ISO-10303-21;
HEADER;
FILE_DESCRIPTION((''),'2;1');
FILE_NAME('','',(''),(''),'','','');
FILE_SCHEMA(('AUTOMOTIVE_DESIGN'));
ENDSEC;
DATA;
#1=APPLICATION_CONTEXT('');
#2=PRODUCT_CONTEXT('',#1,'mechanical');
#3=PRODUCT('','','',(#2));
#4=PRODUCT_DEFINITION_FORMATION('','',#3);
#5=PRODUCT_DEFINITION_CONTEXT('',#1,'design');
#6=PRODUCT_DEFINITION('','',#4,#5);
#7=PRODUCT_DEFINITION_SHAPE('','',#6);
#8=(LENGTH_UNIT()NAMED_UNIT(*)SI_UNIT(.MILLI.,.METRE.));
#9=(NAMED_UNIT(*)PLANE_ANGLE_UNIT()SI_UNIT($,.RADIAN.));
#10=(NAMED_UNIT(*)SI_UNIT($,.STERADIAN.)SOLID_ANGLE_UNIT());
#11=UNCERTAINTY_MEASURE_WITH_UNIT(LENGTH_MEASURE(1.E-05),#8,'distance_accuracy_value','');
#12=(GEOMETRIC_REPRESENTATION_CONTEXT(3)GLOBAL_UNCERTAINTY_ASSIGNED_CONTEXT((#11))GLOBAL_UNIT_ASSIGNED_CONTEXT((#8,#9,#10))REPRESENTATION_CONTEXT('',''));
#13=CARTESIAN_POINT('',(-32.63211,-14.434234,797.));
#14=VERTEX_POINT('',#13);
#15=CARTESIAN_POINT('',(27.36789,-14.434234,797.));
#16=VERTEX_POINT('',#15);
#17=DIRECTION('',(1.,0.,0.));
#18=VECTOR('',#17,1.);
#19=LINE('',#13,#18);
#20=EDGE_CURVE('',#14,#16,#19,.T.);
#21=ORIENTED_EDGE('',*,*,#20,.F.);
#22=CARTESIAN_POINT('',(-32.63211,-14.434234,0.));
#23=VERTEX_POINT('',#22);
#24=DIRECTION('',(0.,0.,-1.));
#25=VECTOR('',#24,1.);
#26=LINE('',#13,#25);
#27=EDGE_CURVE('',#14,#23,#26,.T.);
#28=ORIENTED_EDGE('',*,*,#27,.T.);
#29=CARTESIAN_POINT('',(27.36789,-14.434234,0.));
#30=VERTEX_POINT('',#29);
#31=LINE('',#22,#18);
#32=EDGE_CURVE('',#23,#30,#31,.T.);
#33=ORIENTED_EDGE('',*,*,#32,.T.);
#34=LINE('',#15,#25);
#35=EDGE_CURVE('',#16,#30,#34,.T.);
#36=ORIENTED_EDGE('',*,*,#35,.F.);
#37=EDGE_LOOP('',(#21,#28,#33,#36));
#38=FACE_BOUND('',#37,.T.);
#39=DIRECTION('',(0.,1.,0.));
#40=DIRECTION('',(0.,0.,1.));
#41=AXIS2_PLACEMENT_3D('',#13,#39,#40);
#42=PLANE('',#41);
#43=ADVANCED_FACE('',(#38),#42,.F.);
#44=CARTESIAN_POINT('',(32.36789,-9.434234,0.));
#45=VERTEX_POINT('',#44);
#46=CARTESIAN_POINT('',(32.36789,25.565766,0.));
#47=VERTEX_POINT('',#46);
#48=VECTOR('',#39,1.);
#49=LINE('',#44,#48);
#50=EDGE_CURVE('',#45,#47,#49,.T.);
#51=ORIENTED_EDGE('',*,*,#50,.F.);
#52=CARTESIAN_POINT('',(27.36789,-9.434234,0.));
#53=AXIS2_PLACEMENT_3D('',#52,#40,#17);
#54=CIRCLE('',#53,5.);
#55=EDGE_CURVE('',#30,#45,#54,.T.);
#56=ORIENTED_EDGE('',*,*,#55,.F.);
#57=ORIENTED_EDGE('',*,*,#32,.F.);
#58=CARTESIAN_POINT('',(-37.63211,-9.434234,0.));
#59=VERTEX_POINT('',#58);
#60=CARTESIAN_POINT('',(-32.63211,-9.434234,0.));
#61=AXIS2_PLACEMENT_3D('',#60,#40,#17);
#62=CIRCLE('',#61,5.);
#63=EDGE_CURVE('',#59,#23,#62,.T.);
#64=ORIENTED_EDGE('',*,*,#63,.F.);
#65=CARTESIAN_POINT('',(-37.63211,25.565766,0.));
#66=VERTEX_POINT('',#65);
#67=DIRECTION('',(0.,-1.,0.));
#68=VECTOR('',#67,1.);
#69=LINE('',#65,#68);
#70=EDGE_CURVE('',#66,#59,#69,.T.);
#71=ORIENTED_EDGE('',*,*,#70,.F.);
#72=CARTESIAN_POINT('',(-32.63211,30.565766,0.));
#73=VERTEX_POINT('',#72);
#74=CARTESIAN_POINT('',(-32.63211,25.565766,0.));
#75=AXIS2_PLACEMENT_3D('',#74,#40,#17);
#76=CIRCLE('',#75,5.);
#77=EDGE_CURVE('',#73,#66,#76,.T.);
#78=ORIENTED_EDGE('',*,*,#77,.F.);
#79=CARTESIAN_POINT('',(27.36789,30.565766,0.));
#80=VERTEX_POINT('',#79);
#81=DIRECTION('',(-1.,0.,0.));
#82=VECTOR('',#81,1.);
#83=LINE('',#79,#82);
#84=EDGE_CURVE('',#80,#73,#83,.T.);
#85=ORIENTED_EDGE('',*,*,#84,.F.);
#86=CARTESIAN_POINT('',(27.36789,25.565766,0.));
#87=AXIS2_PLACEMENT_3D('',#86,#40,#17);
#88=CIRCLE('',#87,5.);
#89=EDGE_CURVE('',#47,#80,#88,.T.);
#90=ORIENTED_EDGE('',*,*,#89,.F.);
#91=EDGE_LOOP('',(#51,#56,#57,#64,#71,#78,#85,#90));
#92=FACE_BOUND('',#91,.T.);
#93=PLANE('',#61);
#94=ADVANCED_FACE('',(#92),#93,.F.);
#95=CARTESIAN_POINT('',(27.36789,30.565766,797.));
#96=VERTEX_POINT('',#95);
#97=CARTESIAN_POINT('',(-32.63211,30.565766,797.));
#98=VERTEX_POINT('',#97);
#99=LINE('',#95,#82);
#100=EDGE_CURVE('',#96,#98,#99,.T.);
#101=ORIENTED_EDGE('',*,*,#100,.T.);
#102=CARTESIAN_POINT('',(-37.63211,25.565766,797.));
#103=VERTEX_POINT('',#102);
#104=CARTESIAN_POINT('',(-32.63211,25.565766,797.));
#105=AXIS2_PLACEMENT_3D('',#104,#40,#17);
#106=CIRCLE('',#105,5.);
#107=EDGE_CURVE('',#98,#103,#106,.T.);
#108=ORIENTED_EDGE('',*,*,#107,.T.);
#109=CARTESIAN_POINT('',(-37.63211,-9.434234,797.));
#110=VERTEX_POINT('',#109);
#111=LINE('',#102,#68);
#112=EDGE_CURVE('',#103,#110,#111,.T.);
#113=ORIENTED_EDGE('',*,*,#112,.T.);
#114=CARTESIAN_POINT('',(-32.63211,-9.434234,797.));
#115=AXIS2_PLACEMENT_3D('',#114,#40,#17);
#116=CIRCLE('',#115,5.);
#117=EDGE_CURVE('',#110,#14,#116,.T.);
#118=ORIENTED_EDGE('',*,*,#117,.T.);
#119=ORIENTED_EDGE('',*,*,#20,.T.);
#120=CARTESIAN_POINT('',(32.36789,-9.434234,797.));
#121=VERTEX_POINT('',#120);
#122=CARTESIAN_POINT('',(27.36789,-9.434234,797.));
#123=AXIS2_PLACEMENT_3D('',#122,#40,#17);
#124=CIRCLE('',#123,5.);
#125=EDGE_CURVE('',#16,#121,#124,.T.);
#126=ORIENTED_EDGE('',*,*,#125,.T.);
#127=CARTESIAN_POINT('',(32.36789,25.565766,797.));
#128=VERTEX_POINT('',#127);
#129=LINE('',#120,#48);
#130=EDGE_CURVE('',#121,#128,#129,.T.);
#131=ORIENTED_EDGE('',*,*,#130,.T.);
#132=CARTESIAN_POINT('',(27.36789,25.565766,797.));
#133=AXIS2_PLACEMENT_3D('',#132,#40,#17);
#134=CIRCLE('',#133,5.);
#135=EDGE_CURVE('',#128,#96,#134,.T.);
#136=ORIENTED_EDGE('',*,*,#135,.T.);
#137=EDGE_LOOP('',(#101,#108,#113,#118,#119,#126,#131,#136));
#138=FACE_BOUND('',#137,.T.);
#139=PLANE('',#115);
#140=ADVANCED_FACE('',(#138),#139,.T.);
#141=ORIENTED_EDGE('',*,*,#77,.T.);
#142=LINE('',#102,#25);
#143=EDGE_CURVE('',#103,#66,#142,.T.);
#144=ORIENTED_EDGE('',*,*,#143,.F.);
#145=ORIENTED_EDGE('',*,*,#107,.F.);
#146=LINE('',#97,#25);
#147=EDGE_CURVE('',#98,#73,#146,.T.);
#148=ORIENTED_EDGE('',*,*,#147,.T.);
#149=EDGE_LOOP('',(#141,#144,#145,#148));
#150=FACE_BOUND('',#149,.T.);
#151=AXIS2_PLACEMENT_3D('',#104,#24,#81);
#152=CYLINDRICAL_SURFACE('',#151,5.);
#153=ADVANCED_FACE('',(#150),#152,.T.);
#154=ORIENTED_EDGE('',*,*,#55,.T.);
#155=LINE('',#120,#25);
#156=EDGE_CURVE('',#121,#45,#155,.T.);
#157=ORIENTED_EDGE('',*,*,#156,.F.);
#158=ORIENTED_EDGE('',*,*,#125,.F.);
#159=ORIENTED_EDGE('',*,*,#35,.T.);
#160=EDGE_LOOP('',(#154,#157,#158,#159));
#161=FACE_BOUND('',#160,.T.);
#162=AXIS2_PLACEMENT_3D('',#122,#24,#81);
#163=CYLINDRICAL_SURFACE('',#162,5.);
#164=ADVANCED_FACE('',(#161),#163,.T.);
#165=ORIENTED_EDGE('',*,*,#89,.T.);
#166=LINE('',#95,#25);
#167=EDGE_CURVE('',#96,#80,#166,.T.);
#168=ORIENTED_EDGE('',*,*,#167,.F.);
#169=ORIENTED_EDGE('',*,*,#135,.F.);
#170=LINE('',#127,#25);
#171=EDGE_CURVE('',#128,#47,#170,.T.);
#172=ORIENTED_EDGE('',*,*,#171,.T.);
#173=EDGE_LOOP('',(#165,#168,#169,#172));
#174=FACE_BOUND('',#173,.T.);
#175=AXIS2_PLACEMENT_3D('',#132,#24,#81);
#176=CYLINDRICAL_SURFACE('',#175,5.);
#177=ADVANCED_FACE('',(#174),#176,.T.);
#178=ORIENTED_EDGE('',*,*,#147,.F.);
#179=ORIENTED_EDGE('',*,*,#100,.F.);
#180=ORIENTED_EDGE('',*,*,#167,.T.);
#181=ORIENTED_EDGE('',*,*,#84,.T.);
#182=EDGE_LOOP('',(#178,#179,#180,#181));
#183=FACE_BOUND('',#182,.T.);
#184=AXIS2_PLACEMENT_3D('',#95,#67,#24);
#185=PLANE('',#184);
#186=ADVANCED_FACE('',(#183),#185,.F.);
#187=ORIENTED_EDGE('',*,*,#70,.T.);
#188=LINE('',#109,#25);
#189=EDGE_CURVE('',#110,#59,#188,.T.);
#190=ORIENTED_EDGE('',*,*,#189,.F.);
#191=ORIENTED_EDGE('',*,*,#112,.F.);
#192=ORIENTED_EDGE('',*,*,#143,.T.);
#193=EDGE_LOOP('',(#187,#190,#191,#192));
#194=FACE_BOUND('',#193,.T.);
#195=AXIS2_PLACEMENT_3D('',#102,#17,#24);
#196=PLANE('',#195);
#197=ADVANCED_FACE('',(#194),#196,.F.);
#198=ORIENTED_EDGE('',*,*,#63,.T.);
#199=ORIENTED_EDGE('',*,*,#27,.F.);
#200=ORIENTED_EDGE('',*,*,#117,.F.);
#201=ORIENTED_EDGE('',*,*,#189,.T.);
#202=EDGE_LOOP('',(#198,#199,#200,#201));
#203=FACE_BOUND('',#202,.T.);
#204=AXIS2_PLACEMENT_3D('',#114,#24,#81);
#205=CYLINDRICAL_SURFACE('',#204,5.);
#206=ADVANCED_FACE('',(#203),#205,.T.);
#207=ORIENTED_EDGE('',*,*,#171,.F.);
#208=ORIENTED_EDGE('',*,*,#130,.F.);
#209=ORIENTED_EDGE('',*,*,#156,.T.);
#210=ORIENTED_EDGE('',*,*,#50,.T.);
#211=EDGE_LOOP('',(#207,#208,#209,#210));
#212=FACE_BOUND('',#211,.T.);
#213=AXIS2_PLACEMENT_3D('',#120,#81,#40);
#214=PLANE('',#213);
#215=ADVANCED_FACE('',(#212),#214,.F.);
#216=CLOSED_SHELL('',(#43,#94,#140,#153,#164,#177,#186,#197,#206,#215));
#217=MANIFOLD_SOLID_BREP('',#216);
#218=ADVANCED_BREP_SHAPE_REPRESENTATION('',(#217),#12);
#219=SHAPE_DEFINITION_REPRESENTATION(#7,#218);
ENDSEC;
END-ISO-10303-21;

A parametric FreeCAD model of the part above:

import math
import FreeCAD as App
import Part
import Sketcher
from FreeCAD import Vector
Q = App.Units.Quantity

doc = App.newDocument("Part")
body = doc.addObject("PartDesign::Body", "Body")

sketch1 = body.newObject("Sketcher::SketchObject", "Sketch")
sketch1.AttachmentSupport = (doc.getObject("XY_Plane"), [""])
sketch1.MapMode = "FlatFace"
sketch1.addGeometry([
    Part.LineSegment(Vector(-38, 26, 0), Vector(-38, -9, 0)),
    Part.ArcOfCircle(Part.Circle(Vector(-33, -9, 0), Vector(0, 0, 1), 5), math.radians(180), math.radians(270)),
    Part.LineSegment(Vector(-33, -14, 0), Vector(27, -14, 0)),
    Part.ArcOfCircle(Part.Circle(Vector(27, -9, 0), Vector(0, 0, 1), 5), math.radians(-90), math.radians(0)),
    Part.LineSegment(Vector(32, -9, 0), Vector(32, 26, 0)),
    Part.ArcOfCircle(Part.Circle(Vector(27, 26, 0), Vector(0, 0, 1), 5), math.radians(0), math.radians(90)),
    Part.LineSegment(Vector(27, 31, 0), Vector(-33, 31, 0)),
    Part.ArcOfCircle(Part.Circle(Vector(-33, 26, 0), Vector(0, 0, 1), 5), math.radians(90), math.radians(180)),
], False)
sketch1.addConstraint([
    Sketcher.Constraint("Tangent", 0, 2, 1, 1),
    Sketcher.Constraint("Tangent", 1, 2, 2, 1),
    Sketcher.Constraint("Tangent", 2, 2, 3, 1),
    Sketcher.Constraint("Tangent", 3, 2, 4, 1),
    Sketcher.Constraint("Tangent", 4, 2, 5, 1),
    Sketcher.Constraint("Tangent", 5, 2, 6, 1),
    Sketcher.Constraint("Tangent", 6, 2, 7, 1),
    Sketcher.Constraint("Tangent", 7, 2, 0, 1),
    Sketcher.Constraint("Vertical", 0),
    Sketcher.Constraint("Horizontal", 2),
    Sketcher.Constraint("Vertical", 4),
    Sketcher.Constraint("Horizontal", 6),
    Sketcher.Constraint("Equal", 1, 3),
    Sketcher.Constraint("Equal", 3, 5),
    Sketcher.Constraint("Equal", 5, 7),
    Sketcher.Constraint("Radius", 1, Q("5 mm")),
    Sketcher.Constraint("DistanceX", 2, 1, 2, 2, Q("60 mm")),
    Sketcher.Constraint("DistanceY", 0, 2, 0, 1, Q("35 mm")),
    Sketcher.Constraint("DistanceX", 1, 3, -1, 1, Q("32.63211 mm")),
    Sketcher.Constraint("DistanceY", 1, 3, -1, 1, Q("9.434234 mm")),
])
pad1 = body.newObject("PartDesign::Pad", "Pad")
pad1.Profile = sketch1
pad1.Length = 797

doc.recompute()
